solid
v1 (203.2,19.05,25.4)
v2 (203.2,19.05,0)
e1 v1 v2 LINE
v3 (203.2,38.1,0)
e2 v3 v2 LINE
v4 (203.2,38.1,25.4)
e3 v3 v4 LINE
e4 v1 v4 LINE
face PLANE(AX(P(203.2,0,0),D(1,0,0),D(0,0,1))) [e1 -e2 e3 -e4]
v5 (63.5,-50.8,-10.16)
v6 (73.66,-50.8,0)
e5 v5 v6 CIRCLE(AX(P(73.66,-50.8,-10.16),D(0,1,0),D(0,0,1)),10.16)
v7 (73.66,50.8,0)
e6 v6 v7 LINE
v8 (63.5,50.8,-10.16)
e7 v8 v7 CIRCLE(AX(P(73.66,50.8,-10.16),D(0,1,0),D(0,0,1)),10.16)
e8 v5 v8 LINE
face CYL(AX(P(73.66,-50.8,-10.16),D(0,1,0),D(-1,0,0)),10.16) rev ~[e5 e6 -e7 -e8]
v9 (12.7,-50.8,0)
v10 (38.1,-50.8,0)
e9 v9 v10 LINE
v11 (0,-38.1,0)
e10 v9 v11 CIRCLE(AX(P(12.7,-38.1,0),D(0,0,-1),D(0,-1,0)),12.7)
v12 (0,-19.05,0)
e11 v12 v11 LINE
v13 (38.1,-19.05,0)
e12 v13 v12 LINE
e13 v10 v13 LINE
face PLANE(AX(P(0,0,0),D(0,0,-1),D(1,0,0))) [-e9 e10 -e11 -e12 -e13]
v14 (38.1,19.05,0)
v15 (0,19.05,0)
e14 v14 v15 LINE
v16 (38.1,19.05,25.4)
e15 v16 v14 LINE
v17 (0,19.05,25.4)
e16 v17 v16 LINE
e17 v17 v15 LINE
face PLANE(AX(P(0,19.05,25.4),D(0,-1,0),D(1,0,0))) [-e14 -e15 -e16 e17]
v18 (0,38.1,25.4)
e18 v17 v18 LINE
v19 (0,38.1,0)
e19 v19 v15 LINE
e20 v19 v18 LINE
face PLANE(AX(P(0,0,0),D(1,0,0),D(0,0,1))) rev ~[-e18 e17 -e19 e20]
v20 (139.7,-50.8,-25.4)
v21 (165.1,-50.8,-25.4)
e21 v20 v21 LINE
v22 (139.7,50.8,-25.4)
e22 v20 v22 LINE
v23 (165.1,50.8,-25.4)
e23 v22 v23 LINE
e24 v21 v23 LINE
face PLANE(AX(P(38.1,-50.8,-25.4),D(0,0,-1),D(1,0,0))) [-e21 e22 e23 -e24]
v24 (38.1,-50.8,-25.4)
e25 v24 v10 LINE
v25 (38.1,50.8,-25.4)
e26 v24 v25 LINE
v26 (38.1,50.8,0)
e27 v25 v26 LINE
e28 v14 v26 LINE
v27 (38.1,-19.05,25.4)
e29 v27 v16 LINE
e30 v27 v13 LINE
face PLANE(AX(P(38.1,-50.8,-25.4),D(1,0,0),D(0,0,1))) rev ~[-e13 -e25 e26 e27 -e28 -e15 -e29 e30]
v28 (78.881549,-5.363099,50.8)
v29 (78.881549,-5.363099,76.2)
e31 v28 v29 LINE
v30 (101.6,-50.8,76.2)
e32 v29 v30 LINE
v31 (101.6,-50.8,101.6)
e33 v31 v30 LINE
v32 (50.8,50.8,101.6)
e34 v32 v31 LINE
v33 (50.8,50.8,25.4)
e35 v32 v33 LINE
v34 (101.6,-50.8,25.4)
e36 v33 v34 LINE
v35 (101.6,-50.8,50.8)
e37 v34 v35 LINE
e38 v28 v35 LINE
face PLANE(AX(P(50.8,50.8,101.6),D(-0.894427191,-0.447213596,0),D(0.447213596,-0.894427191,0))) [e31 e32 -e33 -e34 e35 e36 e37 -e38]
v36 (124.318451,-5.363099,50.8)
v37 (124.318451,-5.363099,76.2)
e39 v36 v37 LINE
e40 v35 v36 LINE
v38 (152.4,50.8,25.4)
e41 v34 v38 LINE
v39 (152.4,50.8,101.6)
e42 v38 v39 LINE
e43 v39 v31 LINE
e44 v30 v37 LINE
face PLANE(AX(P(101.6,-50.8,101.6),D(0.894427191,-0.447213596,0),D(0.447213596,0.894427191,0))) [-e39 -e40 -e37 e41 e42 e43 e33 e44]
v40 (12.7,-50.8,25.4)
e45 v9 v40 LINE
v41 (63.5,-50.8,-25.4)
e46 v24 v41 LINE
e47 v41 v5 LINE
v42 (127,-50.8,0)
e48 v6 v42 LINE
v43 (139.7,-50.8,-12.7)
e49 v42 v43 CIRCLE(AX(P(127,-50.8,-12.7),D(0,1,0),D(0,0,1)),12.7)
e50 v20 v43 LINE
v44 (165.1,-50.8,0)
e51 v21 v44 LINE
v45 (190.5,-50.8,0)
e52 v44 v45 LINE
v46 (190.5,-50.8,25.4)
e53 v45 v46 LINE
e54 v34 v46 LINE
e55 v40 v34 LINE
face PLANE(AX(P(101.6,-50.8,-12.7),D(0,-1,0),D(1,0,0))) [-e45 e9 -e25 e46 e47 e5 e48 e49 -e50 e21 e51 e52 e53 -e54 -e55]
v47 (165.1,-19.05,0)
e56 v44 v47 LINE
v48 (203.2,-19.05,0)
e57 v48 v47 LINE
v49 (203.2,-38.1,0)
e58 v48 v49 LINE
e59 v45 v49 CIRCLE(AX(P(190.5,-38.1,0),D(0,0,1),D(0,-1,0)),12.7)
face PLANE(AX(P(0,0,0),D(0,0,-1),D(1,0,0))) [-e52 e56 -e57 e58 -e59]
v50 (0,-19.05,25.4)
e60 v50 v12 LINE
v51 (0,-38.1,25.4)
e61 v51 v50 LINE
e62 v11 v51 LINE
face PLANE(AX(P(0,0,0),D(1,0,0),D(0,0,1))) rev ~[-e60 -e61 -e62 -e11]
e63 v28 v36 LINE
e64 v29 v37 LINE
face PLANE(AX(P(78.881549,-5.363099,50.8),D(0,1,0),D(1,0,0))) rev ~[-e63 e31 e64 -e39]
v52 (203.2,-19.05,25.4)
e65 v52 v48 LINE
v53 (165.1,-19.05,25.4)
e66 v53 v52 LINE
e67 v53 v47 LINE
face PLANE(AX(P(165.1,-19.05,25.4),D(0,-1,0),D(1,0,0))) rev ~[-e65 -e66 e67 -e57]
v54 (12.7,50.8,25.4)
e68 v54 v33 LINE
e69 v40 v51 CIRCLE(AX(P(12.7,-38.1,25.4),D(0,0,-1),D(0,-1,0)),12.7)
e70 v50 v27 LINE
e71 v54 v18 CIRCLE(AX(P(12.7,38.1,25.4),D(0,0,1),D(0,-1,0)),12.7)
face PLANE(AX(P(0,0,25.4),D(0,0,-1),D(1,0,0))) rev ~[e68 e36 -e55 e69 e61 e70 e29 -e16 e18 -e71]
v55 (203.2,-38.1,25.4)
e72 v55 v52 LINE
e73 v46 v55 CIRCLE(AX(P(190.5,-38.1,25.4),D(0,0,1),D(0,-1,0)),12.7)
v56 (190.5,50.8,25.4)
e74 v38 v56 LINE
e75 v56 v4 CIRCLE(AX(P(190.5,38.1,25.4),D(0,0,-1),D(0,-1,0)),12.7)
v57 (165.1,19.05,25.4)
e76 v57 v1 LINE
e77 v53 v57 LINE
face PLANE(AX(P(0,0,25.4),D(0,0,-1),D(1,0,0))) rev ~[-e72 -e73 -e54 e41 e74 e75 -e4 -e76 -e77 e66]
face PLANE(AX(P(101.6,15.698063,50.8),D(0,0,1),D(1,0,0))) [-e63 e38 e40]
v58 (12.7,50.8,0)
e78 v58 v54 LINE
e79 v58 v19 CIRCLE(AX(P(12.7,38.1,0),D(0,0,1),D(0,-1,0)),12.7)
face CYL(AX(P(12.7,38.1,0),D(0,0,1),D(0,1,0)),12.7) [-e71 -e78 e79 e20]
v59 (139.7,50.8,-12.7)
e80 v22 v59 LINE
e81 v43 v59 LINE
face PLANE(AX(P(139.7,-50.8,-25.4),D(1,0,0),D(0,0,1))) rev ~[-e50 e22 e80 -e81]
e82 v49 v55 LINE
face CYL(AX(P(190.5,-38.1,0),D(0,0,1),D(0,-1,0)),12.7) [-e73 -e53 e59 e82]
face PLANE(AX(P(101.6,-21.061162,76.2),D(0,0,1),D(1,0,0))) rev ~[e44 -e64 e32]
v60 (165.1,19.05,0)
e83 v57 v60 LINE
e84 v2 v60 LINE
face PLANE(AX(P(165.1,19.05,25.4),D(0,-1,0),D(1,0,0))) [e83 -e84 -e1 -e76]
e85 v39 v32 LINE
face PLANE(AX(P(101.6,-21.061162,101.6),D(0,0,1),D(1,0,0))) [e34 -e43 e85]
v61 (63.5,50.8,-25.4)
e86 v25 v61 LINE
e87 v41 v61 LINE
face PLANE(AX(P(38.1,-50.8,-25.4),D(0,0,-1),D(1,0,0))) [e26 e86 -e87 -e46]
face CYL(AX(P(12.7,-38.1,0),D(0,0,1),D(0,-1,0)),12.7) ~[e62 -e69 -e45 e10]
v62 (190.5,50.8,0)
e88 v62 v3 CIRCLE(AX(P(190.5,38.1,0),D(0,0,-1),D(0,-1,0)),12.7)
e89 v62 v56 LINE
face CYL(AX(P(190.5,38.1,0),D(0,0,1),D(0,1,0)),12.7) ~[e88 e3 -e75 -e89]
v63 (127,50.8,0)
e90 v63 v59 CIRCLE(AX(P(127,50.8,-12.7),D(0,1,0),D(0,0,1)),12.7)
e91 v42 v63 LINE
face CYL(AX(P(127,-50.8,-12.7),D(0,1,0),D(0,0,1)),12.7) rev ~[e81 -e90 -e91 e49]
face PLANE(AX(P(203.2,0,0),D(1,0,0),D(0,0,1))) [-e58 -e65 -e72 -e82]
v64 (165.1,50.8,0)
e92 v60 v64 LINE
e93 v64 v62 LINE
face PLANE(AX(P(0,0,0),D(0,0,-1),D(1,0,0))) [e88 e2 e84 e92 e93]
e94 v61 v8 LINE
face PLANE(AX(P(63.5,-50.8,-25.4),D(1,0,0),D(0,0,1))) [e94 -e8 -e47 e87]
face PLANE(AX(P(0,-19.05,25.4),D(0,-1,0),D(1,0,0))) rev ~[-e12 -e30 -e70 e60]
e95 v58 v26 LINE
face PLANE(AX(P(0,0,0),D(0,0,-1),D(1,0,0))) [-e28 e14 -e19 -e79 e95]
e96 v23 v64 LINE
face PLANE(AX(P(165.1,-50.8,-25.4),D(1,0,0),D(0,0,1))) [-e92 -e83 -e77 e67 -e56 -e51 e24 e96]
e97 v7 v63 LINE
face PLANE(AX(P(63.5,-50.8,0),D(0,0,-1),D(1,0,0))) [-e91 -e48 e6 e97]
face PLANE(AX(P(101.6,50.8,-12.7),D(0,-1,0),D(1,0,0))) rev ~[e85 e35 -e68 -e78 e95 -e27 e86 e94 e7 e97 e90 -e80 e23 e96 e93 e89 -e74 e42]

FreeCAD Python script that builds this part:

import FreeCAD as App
import Part
import Sketcher

V = App.Vector
Q = App.Units.Quantity


def edges_at(feature, points):
    """Names of the edges that pass closest to the given points."""
    edges = feature.Shape.Edges
    near = lambda p: min(range(len(edges)), key=lambda i: edges[i].distToShape(Part.Vertex(*p))[0])
    return sorted({f"Edge{near(p) + 1}" for p in points})


def add_polygon(sketch, points):
    """Adds a closed chain of lines whose ends are joined by coincident constraints."""
    first, n = sketch.GeometryCount, len(points)
    for a, b in zip(points, points[1:] + points[:1]):
        sketch.addGeometry(Part.LineSegment(App.Vector(*a, 0), App.Vector(*b, 0)), False)
    for i in range(n):
        sketch.addConstraint(Sketcher.Constraint("Coincident", first + i, 2, first + (i + 1) % n, 1))

doc = App.newDocument("Part")
params = doc.addObject("Spreadsheet::Sheet", "Params")
for row, (alias, value) in enumerate([
    ("sketch1_width", "8 in"),
    ("sketch1_height", "1 in"),
    ("pad1_length", "4 in"),
    ("sketch2_width", "4 in"),
    ("pad2_length", "1 in"),
    ("sketch3_width", "4 in"),
    ("pad3_length", "2 in"),
    ("sketch4_width", "4 in"),
    ("pad4_length", "1 in"),
    ("sketch5_width", "1.5 in"),
    ("fillet_radius", "0.5 in"),
    ("sketch6_width", "5 in"),
    ("sketch6_height", "1 in"),
    ("pad5_length", "4 in"),
    ("sketch7_width", "3 in"),
    ("sketch7_height", "1 in"),
    ("fillet2_radius", "0.4 in"),
    ("fillet3_radius", "0.5 in"),
], start=1):
    params.set(f"A{row}", alias)
    params.set(f"B{row}", "=" + value)
    params.setAlias(f"B{row}", alias)

body = doc.addObject("PartDesign::Body", "Body")

sketch1 = body.newObject("Sketcher::SketchObject", "Sketch")
sketch1.AttachmentSupport = (doc.getObject("XZ_Plane"), [""])
sketch1.MapMode = "FlatFace"
add_polygon(sketch1, [(0, 25), (0, 0), (203, 0), (203, 25)])
sketch1.addConstraint([
    Sketcher.Constraint("Vertical", 0),
    Sketcher.Constraint("Horizontal", 1),
    Sketcher.Constraint("Vertical", 2),
    Sketcher.Constraint("Horizontal", 3),
    Sketcher.Constraint("Coincident", 0, 2, -1, 1),
    Sketcher.Constraint("DistanceX", 1, 1, 1, 2, Q("8 in")),
    Sketcher.Constraint("DistanceY", 0, 2, 0, 1, Q("1 in")),
])
sketch1.setExpression("Constraints[9]", "Params.sketch1_width")
sketch1.setExpression("Constraints[10]", "Params.sketch1_height")
pad1 = body.newObject("PartDesign::Pad", "Pad")
pad1.Profile = sketch1
pad1.setExpression("Length", "Params.pad1_length")
pad1.Midplane = True

sketch2 = body.newObject("Sketcher::SketchObject", "Sketch001")
sketch2.AttachmentSupport = (doc.getObject("XY_Plane"), [""])
sketch2.MapMode = "FlatFace"
sketch2.AttachmentOffset = App.Placement(V(0, 0, 1 * 25.4), App.Rotation())
add_polygon(sketch2, [(51, 51), (102, -51), (152, 51)])
sketch2.addConstraint([
    Sketcher.Constraint("Horizontal", 2),
    Sketcher.Constraint("Equal", 0, 1),
    Sketcher.Constraint("DistanceX", 2, 2, 2, 1, Q("4 in")),
    Sketcher.Constraint("DistanceX", -1, 1, 0, 2, Q("4 in")),
    Sketcher.Constraint("DistanceY", 0, 2, -1, 1, Q("2 in")),
    Sketcher.Constraint("DistanceY", -1, 1, 1, 2, Q("2 in")),
])
sketch2.setExpression("Constraints[5]", "Params.sketch2_width")
pad2 = body.newObject("PartDesign::Pad", "Pad001")
pad2.Profile = sketch2
pad2.setExpression("Length", "Params.pad2_length")

sketch3 = body.newObject("Sketcher::SketchObject", "Sketch002")
sketch3.AttachmentSupport = (doc.getObject("XY_Plane"), [""])
sketch3.MapMode = "FlatFace"
sketch3.AttachmentOffset = App.Placement(V(0, 0, 2 * 25.4), App.Rotation())
add_polygon(sketch3, [(51, 51), (79, -5), (124, -5), (152, 51)])
sketch3.addConstraint([
    Sketcher.Constraint("Horizontal", 1),
    Sketcher.Constraint("Horizontal", 3),
    Sketcher.Constraint("Equal", 0, 2),
    Sketcher.Constraint("DistanceX", 3, 2, 3, 1, Q("4 in")),
    Sketcher.Constraint("DistanceX", -1, 1, 2, 2, Q("6 in")),
    Sketcher.Constraint("DistanceY", -1, 1, 2, 2, Q("2 in")),
    Sketcher.Constraint("DistanceX", 1, 1, 1, 2, 45.436901),
    Sketcher.Constraint("DistanceY", 0, 2, -1, 1, 5.363099),
])
sketch3.setExpression("Constraints[7]", "Params.sketch3_width")
pad3 = body.newObject("PartDesign::Pad", "Pad002")
pad3.Profile = sketch3
pad3.setExpression("Length", "Params.pad3_length")

sketch4 = body.newObject("Sketcher::SketchObject", "Sketch003")
sketch4.AttachmentSupport = (doc.getObject("XY_Plane"), [""])
sketch4.MapMode = "FlatFace"
sketch4.AttachmentOffset = App.Placement(V(0, 0, 4 * 25.4), App.Rotation())
add_polygon(sketch4, [(102, -51), (152, 51), (51, 51)])
sketch4.addConstraint([
    Sketcher.Constraint("Horizontal", 1),
    Sketcher.Constraint("Equal", 0, 2),
    Sketcher.Constraint("DistanceX", 1, 2, 1, 1, Q("4 in")),
    Sketcher.Constraint("DistanceX", -1, 1, 0, 2, Q("6 in")),
    Sketcher.Constraint("DistanceY", -1, 1, 0, 2, Q("2 in")),
    Sketcher.Constraint("DistanceY", 2, 2, -1, 1, Q("2 in")),
])
sketch4.setExpression("Constraints[5]", "Params.sketch4_width")
pad4 = body.newObject("PartDesign::Pad", "Pad003")
pad4.Profile = sketch4
pad4.setExpression("Length", "Params.pad4_length")
pad4.Reversed = True

sketch5 = body.newObject("Sketcher::SketchObject", "Sketch004")
sketch5.AttachmentSupport = (doc.getObject("XY_Plane"), [""])
sketch5.MapMode = "FlatFace"
sketch5.AttachmentOffset = App.Placement(V(0, 0, 1 * 25.4), App.Rotation())
add_polygon(sketch5, [(0, 19), (0, -19), (38, -19), (38, 19)])
add_polygon(sketch5, [(165, 19), (165, -19), (203, -19), (203, 19)])
sketch5.addConstraint([
    Sketcher.Constraint("Vertical", 0),
    Sketcher.Constraint("Horizontal", 1),
    Sketcher.Constraint("Vertical", 2),
    Sketcher.Constraint("Horizontal", 3),
    Sketcher.Constraint("Vertical", 4),
    Sketcher.Constraint("Horizontal", 5),
    Sketcher.Constraint("Vertical", 6),
    Sketcher.Constraint("Horizontal", 7),
    Sketcher.Constraint("Symmetric", 0, 2, 3, 2, -1, 1),
    Sketcher.Constraint("Horizontal", 1, 2, 4, 2),
    Sketcher.Constraint("Horizontal", 3, 2, 6, 2),
    Sketcher.Constraint("Equal", 3, 5),
    Sketcher.Constraint("Equal", 7, 0),
    Sketcher.Constraint("DistanceX", 1, 1, 1, 2, Q("1.5 in")),
    Sketcher.Constraint("DistanceX", -1, 1, 5, 2, Q("8 in")),
])
sketch5.setExpression("Constraints[21]", "Params.sketch5_width")
pocket1 = body.newObject("PartDesign::Pocket", "Pocket")
pocket1.Profile = sketch5
pocket1.Type = "ThroughAll"
doc.recompute()

fillet = body.newObject("PartDesign::Fillet", "Fillet")
fillet.Base = (pocket1, edges_at(pocket1, [
    (0, 50.8, 12.7),
    (0, -50.8, 12.7),
    (203.2, -50.8, 12.7),
    (203.2, 50.8, 12.7),
]))
fillet.setExpression("Radius", "Params.fillet_radius")

sketch6 = body.newObject("Sketcher::SketchObject", "Sketch005")
sketch6.AttachmentSupport = (doc.getObject("XZ_Plane"), [""])
sketch6.MapMode = "FlatFace"
sketch6.AttachmentOffset = App.Placement(V(0, 0, 2 * 25.4), App.Rotation())
add_polygon(sketch6, [(38, 0), (38, -25), (165, -25), (165, 0)])
sketch6.addConstraint([
    Sketcher.Constraint("Vertical", 0),
    Sketcher.Constraint("Horizontal", 1),
    Sketcher.Constraint("Vertical", 2),
    Sketcher.Constraint("Horizontal", 3),
    Sketcher.Constraint("PointOnObject", 2, 2, -1),
    Sketcher.Constraint("DistanceX", 1, 1, 1, 2, Q("5 in")),
    Sketcher.Constraint("DistanceY", 0, 2, 0, 1, Q("1 in")),
    Sketcher.Constraint("DistanceX", -1, 1, 0, 2, Q("1.5 in")),
])
sketch6.setExpression("Constraints[9]", "Params.sketch6_width")
sketch6.setExpression("Constraints[10]", "Params.sketch6_height")
pad5 = body.newObject("PartDesign::Pad", "Pad004")
pad5.Profile = sketch6
pad5.setExpression("Length", "Params.pad5_length")
pad5.Reversed = True

sketch7 = body.newObject("Sketcher::SketchObject", "Sketch006")
sketch7.AttachmentSupport = (doc.getObject("XZ_Plane"), [""])
sketch7.MapMode = "FlatFace"
sketch7.AttachmentOffset = App.Placement(V(0, 0, 2 * 25.4), App.Rotation())
add_polygon(sketch7, [(64, 0), (64, -25), (140, -25), (140, 0)])
sketch7.addConstraint([
    Sketcher.Constraint("Vertical", 0),
    Sketcher.Constraint("Horizontal", 1),
    Sketcher.Constraint("Vertical", 2),
    Sketcher.Constraint("Horizontal", 3),
    Sketcher.Constraint("PointOnObject", 2, 2, -1),
    Sketcher.Constraint("DistanceX", 1, 1, 1, 2, Q("3 in")),
    Sketcher.Constraint("DistanceY", 0, 2, 0, 1, Q("1 in")),
    Sketcher.Constraint("DistanceX", -1, 1, 0, 2, Q("2.5 in")),
])
sketch7.setExpression("Constraints[9]", "Params.sketch7_width")
sketch7.setExpression("Constraints[10]", "Params.sketch7_height")
pocket2 = body.newObject("PartDesign::Pocket", "Pocket001")
pocket2.Profile = sketch7
pocket2.Type = "ThroughAll"
doc.recompute()

fillet2 = body.newObject("PartDesign::Fillet", "Fillet001")
fillet2.Base = (pocket2, edges_at(pocket2, [(63.5, 0, 0)]))
fillet2.setExpression("Radius", "Params.fillet2_radius")
doc.recompute()

fillet3 = body.newObject("PartDesign::Fillet", "Fillet002")
fillet3.Base = (fillet2, edges_at(fillet2, [(139.7, 0, 0)]))
fillet3.setExpression("Radius", "Params.fillet3_radius")

doc.recompute()
